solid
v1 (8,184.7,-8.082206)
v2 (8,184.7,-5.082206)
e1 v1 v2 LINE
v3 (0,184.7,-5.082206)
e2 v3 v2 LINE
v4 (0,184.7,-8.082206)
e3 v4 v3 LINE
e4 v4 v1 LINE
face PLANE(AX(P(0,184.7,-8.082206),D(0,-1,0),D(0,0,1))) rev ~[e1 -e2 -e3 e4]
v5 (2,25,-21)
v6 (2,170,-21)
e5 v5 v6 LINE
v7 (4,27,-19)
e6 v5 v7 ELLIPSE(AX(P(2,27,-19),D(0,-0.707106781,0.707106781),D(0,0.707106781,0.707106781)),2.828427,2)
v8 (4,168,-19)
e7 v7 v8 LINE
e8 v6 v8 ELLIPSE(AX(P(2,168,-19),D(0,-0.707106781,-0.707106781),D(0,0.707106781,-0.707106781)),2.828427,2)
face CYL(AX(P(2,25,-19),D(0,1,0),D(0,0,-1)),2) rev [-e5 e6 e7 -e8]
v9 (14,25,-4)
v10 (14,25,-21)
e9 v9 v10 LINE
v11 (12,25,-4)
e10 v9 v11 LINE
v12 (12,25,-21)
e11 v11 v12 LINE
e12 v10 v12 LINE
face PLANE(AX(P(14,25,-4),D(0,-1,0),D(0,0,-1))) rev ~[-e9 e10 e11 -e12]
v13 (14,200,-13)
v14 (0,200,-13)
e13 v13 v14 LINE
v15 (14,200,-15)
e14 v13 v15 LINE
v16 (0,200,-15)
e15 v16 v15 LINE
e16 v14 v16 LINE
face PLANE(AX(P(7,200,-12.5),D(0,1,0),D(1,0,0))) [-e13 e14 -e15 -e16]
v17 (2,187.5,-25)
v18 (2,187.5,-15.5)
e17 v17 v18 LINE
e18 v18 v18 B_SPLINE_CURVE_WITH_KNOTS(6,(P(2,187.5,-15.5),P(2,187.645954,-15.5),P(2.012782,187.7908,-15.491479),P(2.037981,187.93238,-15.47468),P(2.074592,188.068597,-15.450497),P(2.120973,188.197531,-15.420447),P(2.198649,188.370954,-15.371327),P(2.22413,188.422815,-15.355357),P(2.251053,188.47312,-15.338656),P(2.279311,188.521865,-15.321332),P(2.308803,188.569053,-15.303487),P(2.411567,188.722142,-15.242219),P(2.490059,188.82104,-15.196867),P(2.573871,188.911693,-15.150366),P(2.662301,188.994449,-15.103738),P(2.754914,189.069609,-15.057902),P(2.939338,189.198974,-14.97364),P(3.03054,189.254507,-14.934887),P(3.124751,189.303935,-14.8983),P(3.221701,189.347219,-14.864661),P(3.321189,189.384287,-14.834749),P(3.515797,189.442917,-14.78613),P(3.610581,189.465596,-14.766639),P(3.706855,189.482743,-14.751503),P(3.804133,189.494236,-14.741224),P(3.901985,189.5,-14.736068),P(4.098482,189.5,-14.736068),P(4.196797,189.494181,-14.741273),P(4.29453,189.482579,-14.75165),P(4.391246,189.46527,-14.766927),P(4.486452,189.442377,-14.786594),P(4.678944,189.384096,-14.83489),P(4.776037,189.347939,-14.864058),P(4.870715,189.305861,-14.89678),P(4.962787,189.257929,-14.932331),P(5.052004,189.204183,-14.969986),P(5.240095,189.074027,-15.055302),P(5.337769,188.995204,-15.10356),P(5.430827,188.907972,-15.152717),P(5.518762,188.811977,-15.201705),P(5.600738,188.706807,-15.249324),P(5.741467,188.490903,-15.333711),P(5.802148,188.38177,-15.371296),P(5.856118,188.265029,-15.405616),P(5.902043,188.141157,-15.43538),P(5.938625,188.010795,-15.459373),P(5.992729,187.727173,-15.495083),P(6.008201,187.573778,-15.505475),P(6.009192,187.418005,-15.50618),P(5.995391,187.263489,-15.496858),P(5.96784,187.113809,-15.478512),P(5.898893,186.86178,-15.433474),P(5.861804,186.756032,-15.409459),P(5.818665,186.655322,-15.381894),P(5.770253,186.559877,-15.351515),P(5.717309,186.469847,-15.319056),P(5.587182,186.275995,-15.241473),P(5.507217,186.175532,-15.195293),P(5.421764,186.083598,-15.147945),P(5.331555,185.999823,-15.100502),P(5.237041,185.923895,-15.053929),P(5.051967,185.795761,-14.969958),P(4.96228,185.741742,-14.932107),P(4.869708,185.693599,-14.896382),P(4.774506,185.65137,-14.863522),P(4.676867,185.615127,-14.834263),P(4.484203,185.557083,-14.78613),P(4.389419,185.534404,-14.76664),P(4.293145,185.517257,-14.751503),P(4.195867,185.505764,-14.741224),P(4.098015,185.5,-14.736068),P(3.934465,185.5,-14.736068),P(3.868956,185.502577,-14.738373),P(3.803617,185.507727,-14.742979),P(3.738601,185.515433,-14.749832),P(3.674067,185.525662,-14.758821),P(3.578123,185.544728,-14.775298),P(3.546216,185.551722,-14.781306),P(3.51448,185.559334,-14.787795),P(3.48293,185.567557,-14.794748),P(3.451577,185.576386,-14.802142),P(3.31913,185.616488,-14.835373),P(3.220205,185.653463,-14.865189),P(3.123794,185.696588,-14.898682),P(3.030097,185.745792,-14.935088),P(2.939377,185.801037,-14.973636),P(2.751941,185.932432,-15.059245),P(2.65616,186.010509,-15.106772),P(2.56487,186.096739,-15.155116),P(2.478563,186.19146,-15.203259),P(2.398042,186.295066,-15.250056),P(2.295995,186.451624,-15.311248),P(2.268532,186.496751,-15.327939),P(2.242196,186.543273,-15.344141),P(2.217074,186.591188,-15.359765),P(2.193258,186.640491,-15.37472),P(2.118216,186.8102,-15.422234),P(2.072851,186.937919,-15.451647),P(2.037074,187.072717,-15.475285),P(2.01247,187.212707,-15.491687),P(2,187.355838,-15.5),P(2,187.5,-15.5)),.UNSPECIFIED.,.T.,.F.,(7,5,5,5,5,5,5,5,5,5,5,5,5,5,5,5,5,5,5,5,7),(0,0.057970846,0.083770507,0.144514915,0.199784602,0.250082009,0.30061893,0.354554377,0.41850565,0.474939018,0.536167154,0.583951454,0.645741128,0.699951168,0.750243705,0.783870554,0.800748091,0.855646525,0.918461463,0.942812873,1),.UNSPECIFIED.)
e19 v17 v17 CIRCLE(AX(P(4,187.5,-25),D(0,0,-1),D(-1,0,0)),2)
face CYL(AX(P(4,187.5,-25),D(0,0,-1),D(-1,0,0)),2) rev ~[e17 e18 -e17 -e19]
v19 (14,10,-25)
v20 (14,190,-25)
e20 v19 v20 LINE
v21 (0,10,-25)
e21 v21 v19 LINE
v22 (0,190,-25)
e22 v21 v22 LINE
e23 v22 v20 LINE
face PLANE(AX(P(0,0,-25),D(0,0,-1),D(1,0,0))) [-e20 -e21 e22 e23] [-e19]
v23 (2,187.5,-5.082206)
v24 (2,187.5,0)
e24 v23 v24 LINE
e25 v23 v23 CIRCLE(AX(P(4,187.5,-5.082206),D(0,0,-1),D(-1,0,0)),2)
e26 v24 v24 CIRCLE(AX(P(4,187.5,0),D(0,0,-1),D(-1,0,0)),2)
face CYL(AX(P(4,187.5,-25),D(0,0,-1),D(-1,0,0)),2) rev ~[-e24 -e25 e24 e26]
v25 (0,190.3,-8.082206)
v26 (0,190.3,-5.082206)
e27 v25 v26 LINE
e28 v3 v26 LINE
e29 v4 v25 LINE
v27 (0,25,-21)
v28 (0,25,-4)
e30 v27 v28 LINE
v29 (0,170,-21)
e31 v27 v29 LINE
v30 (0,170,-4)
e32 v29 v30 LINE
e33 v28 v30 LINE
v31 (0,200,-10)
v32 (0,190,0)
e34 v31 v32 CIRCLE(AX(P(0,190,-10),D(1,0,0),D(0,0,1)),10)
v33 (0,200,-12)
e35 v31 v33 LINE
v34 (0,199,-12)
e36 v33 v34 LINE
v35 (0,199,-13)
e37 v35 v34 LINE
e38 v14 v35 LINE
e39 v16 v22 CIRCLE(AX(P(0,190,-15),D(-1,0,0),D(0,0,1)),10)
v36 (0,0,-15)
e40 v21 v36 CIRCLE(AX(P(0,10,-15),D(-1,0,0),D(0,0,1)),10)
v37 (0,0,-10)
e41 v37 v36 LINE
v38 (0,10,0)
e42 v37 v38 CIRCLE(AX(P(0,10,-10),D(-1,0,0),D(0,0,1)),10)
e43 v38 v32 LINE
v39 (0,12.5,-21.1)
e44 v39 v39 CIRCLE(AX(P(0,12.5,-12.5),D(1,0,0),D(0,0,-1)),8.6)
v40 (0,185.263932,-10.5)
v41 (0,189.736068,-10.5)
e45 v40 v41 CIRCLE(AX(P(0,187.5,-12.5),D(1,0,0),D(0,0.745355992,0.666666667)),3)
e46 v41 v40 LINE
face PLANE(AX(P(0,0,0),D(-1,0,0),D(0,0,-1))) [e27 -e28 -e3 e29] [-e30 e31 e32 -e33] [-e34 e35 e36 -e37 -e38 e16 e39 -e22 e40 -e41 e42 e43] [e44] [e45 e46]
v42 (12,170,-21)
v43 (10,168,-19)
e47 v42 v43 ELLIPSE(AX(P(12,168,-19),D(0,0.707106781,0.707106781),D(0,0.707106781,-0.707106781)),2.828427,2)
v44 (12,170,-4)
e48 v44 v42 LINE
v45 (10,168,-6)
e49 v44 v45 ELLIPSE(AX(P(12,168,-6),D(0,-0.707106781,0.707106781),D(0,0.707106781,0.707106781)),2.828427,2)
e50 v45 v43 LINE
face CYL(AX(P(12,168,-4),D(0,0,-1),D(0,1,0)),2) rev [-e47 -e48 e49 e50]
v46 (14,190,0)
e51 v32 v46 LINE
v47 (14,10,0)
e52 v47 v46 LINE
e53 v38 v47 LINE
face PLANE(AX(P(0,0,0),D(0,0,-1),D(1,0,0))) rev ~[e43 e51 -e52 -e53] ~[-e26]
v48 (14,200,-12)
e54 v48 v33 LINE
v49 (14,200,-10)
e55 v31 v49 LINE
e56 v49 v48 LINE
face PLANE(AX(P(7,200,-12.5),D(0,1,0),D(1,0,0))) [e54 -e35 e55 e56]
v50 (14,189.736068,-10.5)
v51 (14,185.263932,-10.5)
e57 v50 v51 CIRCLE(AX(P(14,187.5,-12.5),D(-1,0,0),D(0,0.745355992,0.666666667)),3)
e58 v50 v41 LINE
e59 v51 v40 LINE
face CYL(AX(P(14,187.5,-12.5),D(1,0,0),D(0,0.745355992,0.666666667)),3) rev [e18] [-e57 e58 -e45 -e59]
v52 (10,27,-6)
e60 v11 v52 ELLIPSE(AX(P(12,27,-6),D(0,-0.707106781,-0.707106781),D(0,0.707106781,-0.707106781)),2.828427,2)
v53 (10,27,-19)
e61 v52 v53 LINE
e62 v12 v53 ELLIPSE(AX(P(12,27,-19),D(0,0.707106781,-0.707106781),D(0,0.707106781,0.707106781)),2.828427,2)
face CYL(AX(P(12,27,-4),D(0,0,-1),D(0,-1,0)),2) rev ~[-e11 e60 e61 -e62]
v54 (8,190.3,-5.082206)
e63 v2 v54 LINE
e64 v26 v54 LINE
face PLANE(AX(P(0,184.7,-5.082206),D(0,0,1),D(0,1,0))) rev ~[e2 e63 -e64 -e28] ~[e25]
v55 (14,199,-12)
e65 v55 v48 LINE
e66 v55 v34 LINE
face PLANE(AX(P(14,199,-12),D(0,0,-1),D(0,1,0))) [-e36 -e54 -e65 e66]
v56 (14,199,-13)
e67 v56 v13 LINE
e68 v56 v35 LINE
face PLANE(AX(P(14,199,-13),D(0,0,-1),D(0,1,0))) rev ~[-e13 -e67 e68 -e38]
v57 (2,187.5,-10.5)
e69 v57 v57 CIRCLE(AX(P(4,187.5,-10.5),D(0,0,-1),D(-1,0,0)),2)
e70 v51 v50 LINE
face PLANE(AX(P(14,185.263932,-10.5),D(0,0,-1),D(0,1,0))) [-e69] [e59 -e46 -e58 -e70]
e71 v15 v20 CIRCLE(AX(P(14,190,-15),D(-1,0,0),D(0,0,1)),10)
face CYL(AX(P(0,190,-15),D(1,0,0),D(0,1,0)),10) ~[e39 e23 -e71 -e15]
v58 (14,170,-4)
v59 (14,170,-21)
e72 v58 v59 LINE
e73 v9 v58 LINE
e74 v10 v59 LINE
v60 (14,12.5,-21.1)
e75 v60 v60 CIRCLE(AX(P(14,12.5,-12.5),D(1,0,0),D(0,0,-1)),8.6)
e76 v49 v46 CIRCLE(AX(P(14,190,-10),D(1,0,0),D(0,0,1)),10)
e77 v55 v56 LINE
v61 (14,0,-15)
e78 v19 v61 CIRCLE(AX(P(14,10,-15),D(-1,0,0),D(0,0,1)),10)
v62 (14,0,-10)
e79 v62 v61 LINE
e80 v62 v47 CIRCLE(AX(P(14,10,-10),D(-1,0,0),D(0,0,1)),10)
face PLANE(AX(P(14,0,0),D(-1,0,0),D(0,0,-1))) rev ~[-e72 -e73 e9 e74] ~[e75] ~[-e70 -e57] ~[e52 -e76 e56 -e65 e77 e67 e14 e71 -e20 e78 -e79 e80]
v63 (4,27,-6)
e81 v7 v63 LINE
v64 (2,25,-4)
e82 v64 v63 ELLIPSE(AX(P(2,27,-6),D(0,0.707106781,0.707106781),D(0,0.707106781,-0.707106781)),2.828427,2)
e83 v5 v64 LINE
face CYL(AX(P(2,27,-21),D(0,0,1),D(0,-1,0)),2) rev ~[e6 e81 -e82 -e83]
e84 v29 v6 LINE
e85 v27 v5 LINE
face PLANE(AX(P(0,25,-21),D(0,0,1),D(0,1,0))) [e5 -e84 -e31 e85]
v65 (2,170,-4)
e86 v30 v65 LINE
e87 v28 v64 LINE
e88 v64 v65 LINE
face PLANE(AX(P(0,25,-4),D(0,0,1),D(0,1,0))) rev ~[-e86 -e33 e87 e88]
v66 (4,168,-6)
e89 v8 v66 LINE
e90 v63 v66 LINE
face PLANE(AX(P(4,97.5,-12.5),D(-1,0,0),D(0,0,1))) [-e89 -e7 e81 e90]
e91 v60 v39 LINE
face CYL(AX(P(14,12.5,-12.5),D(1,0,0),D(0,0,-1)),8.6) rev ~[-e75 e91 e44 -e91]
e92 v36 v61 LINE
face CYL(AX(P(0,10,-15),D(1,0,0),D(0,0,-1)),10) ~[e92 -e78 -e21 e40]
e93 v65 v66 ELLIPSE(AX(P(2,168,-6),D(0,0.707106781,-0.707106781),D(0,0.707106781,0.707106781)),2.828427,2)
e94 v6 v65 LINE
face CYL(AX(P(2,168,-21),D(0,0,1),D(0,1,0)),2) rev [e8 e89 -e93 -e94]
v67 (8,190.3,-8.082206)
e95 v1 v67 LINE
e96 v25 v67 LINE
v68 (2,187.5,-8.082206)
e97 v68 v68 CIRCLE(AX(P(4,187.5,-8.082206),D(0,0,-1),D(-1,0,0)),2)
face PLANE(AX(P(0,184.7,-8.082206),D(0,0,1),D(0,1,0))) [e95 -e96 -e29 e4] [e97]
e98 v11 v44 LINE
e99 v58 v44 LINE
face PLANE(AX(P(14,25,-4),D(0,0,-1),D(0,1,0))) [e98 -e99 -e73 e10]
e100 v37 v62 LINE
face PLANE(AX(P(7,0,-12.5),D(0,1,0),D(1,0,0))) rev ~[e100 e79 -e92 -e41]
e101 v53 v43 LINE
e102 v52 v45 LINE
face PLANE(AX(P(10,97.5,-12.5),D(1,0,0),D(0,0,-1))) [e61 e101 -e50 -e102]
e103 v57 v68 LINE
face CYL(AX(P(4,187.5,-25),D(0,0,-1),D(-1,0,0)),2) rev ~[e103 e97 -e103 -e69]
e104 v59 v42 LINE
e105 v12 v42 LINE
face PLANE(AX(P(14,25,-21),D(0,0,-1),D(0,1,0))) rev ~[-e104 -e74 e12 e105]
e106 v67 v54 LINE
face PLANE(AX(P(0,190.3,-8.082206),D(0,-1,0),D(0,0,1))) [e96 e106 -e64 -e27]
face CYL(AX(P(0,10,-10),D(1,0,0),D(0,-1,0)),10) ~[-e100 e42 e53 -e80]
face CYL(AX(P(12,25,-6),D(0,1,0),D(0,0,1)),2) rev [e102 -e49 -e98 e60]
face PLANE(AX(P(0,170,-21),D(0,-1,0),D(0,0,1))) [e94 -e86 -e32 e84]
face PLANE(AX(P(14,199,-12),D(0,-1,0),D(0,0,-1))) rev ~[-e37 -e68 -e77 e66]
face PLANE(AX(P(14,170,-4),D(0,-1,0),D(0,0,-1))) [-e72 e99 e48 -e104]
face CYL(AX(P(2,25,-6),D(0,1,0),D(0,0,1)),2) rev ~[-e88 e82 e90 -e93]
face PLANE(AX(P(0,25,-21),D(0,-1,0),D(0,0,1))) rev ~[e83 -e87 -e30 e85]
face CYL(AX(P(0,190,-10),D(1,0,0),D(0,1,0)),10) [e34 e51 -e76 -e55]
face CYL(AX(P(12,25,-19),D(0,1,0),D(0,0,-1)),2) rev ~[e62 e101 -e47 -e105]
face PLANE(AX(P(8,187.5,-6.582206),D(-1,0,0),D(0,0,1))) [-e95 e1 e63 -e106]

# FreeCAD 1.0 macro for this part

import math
import FreeCAD as App
import Part
import Sketcher

V = App.Vector
Q = App.Units.Quantity


def edges_at(feature, points):
    """Names of the edges that pass closest to the given points."""
    edges = feature.Shape.Edges
    near = lambda p: min(range(len(edges)), key=lambda i: edges[i].distToShape(Part.Vertex(*p))[0])
    return sorted({f"Edge{near(p) + 1}" for p in points})


def add_polygon(sketch, points):
    """Adds a closed chain of lines whose ends are joined by coincident constraints."""
    first, n = sketch.GeometryCount, len(points)
    for a, b in zip(points, points[1:] + points[:1]):
        sketch.addGeometry(Part.LineSegment(App.Vector(*a, 0), App.Vector(*b, 0)), False)
    for i in range(n):
        sketch.addConstraint(Sketcher.Constraint("Coincident", first + i, 2, first + (i + 1) % n, 1))

doc = App.newDocument("Part")
params = doc.addObject("Spreadsheet::Sheet", "Params")
for row, (alias, value) in enumerate([
    ("sketch1_width", "14 mm"),
    ("sketch1_height", "25 mm"),
    ("pad1_length", "200 mm"),
    ("fillet_radius", "10 mm"),
    ("fillet2_radius", "10 mm"),
    ("sketch2_radius", "3 mm"),
    ("sketch2_diameter", "17.2 mm"),
    ("pocket1_length", "28 mm"),
    ("sketch3_radius", "3 mm"),
    ("pad2_length", "14 mm"),
    ("sketch4_diameter", "4 mm"),
    ("sketch5_height", "3 mm"),
    ("sketch5_width", "5.6 mm"),
    ("pocket3_length", "8 mm"),
    ("sketch6_width", "145 mm"),
    ("sketch6_height", "17 mm"),
    ("pocket4_length", "4 mm"),
    ("sketch7_width", "145 mm"),
    ("sketch7_height", "17 mm"),
    ("pocket5_length", "4 mm"),
    ("fillet3_radius", "2 mm"),
    ("fillet4_radius", "2 mm"),
    ("sketch8_width", "1 mm"),
    ("fillet5_radius", "10 mm"),
    ("fillet6_radius", "10 mm"),
], start=1):
    params.set(f"A{row}", alias)
    params.set(f"B{row}", "=" + value)
    params.setAlias(f"B{row}", alias)

body = doc.addObject("PartDesign::Body", "Body")

sketch1 = doc.addObject("Sketcher::SketchObject", "Sketch")
body.addObject(sketch1)
sketch1.AttachmentSupport = (doc.XZ_Plane, [""])
sketch1.MapMode = "FlatFace"
add_polygon(sketch1, [(0, -25), (0, 0), (14, 0), (14, -25)])
sketch1.addConstraint([
    Sketcher.Constraint("Vertical", 0),
    Sketcher.Constraint("Horizontal", 1),
    Sketcher.Constraint("Vertical", 2),
    Sketcher.Constraint("Horizontal", 3),
    Sketcher.Constraint("Coincident", 0, 2, -1, 1),
    Sketcher.Constraint("DistanceX", 1, 1, 1, 2, Q("14 mm")),
    Sketcher.Constraint("DistanceY", 0, 1, 0, 2, Q("25 mm")),
])
sketch1.setExpression("Constraints[9]", "Params.sketch1_width")
sketch1.setExpression("Constraints[10]", "Params.sketch1_height")
pad1 = doc.addObject("PartDesign::Pad", "Pad")
body.addObject(pad1)
pad1.Profile = sketch1
pad1.setExpression("Length", "Params.pad1_length")
pad1.Reversed = True
doc.recompute()

fillet = doc.addObject("PartDesign::Fillet", "Fillet")
body.addObject(fillet)
fillet.Base = (pad1, edges_at(pad1, [(7, 0, -25)]))
fillet.setExpression("Radius", "Params.fillet_radius")
doc.recompute()

fillet2 = doc.addObject("PartDesign::Fillet", "Fillet001")
body.addObject(fillet2)
fillet2.Base = (fillet, edges_at(fillet, [(7, 0, 0)]))
fillet2.setExpression("Radius", "Params.fillet2_radius")

sketch2 = doc.addObject("Sketcher::SketchObject", "Sketch001")
body.addObject(sketch2)
sketch2.AttachmentSupport = (doc.YZ_Plane, [""])
sketch2.MapMode = "FlatFace"
sketch2.AttachmentOffset = App.Placement(V(0, 0, 14), App.Rotation())
sketch2.addGeometry([
    Part.Circle(V(12.5, -12.5, 0), V(0, 0, 1), 8.6),
    Part.LineSegment(V(189.7, -10.5, 0), V(185.3, -10.5, 0)),
    Part.ArcOfCircle(Part.Circle(V(187.5, -12.5, 0), V(0, 0, 1), 3), math.radians(138), math.radians(402)),
], False)
sketch2.addConstraint([
    Sketcher.Constraint("Coincident", 1, 1, 2, 2),
    Sketcher.Constraint("Coincident", 2, 1, 1, 2),
    Sketcher.Constraint("Horizontal", 1),
    Sketcher.Constraint("Horizontal", 0, 3, 2, 3),
    Sketcher.Constraint("Radius", 2, Q("3 mm")),
    Sketcher.Constraint("Diameter", 0, Q("17.2 mm")),
    Sketcher.Constraint("DistanceX", 0, 3, 2, 3, Q("175 mm")),
    Sketcher.Constraint("DistanceY", 2, 3, 1, 1, Q("2 mm")),
    Sketcher.Constraint("DistanceX", -1, 1, 0, 3, Q("12.5 mm")),
    Sketcher.Constraint("DistanceY", 0, 3, -1, 1, Q("12.5 mm")),
])
sketch2.setExpression("Constraints[4]", "Params.sketch2_radius")
sketch2.setExpression("Constraints[5]", "Params.sketch2_diameter")
pocket1 = doc.addObject("PartDesign::Pocket", "Pocket")
body.addObject(pocket1)
pocket1.Profile = sketch2
pocket1.setExpression("Length", "Params.pocket1_length")

sketch3 = doc.addObject("Sketcher::SketchObject", "Sketch002")
body.addObject(sketch3)
sketch3.AttachmentSupport = (doc.YZ_Plane, [""])
sketch3.MapMode = "FlatFace"
sketch3.AttachmentOffset = App.Placement(V(0, 0, 14), App.Rotation())
sketch3.addGeometry([
    Part.Circle(V(187.5, -12.5, 0), V(0, 0, 1), 9.9),
    Part.ArcOfCircle(Part.Circle(V(187.5, -12.5, 0), V(0, 0, 1), 3), math.radians(138), math.radians(402)),
    Part.LineSegment(V(185.3, -10.5, 0), V(189.7, -10.5, 0)),
], False)
sketch3.addConstraint([
    Sketcher.Constraint("Coincident", 1, 1, 2, 1),
    Sketcher.Constraint("Coincident", 2, 2, 1, 2),
    Sketcher.Constraint("Horizontal", 2),
    Sketcher.Constraint("Coincident", 1, 3, 0, 3),
    Sketcher.Constraint("Radius", 1, Q("3 mm")),
    Sketcher.Constraint("DistanceY", 0, 3, 1, 1, Q("2 mm")),
    Sketcher.Constraint("DistanceX", -1, 1, 0, 3, Q("187.5 mm")),
    Sketcher.Constraint("DistanceY", 0, 3, -1, 1, Q("12.5 mm")),
    Sketcher.Constraint("Diameter", 0, Q("19.826088 mm")),
])
sketch3.setExpression("Constraints[4]", "Params.sketch3_radius")
pad2 = doc.addObject("PartDesign::Pad", "Pad001")
body.addObject(pad2)
pad2.Profile = sketch3
pad2.setExpression("Length", "Params.pad2_length")
pad2.Reversed = True

sketch4 = doc.addObject("Sketcher::SketchObject", "Sketch003")
body.addObject(sketch4)
sketch4.AttachmentSupport = (doc.XY_Plane, [""])
sketch4.MapMode = "FlatFace"
sketch4.AttachmentOffset = App.Placement(V(0, 0, -25), App.Rotation())
sketch4.addGeometry(Part.Circle(V(4, 187.5, 0), V(0, 0, 1), 2), False)
sketch4.addConstraint([
    Sketcher.Constraint("Diameter", 0, Q("4 mm")),
    Sketcher.Constraint("DistanceX", -1, 1, 0, 3, Q("4 mm")),
    Sketcher.Constraint("DistanceY", -1, 1, 0, 3, Q("187.5 mm")),
])
sketch4.setExpression("Constraints[0]", "Params.sketch4_diameter")
pocket2 = doc.addObject("PartDesign::Pocket", "Pocket001")
body.addObject(pocket2)
pocket2.Profile = sketch4
pocket2.Type = "ThroughAll"
pocket2.Reversed = True

sketch5 = doc.addObject("Sketcher::SketchObject", "Sketch004")
body.addObject(sketch5)
sketch5.AttachmentSupport = (doc.YZ_Plane, [""])
sketch5.MapMode = "FlatFace"
add_polygon(sketch5, [(190.3, -8.1), (184.7, -8.1), (184.7, -5.1), (190.3, -5.1)])
sketch5.addConstraint([
    Sketcher.Constraint("Horizontal", 0),
    Sketcher.Constraint("Vertical", 1),
    Sketcher.Constraint("Horizontal", 2),
    Sketcher.Constraint("Vertical", 3),
    Sketcher.Constraint("DistanceY", 1, 1, 1, 2, Q("3 mm")),
    Sketcher.Constraint("DistanceX", 0, 2, 0, 1, Q("5.6 mm")),
    Sketcher.Constraint("DistanceX", -1, 1, 0, 2, Q("184.7 mm")),
    Sketcher.Constraint("DistanceY", 0, 2, -1, 1, Q("8.082206 mm")),
])
sketch5.setExpression("Constraints[8]", "Params.sketch5_height")
sketch5.setExpression("Constraints[9]", "Params.sketch5_width")
pocket3 = doc.addObject("PartDesign::Pocket", "Pocket002")
body.addObject(pocket3)
pocket3.Profile = sketch5
pocket3.setExpression("Length", "Params.pocket3_length")
pocket3.Reversed = True

sketch6 = doc.addObject("Sketcher::SketchObject", "Sketch005")
body.addObject(sketch6)
sketch6.AttachmentSupport = (doc.YZ_Plane, [""])
sketch6.MapMode = "FlatFace"
add_polygon(sketch6, [(170, -21), (25, -21), (25, -4), (170, -4)])
sketch6.addConstraint([
    Sketcher.Constraint("Horizontal", 0),
    Sketcher.Constraint("Vertical", 1),
    Sketcher.Constraint("Horizontal", 2),
    Sketcher.Constraint("Vertical", 3),
    Sketcher.Constraint("DistanceX", 0, 2, 0, 1, Q("145 mm")),
    Sketcher.Constraint("DistanceY", 1, 1, 1, 2, Q("17 mm")),
    Sketcher.Constraint("DistanceX", -1, 1, 0, 2, Q("25 mm")),
    Sketcher.Constraint("DistanceY", 0, 2, -1, 1, Q("21 mm")),
])
sketch6.setExpression("Constraints[8]", "Params.sketch6_width")
sketch6.setExpression("Constraints[9]", "Params.sketch6_height")
pocket4 = doc.addObject("PartDesign::Pocket", "Pocket003")
body.addObject(pocket4)
pocket4.Profile = sketch6
pocket4.setExpression("Length", "Params.pocket4_length")
pocket4.Reversed = True

sketch7 = doc.addObject("Sketcher::SketchObject", "Sketch006")
body.addObject(sketch7)
sketch7.AttachmentSupport = (doc.YZ_Plane, [""])
sketch7.MapMode = "FlatFace"
sketch7.AttachmentOffset = App.Placement(V(0, 0, 14), App.Rotation())
add_polygon(sketch7, [(170, -4), (25, -4), (25, -21), (170, -21)])
sketch7.addConstraint([
    Sketcher.Constraint("Horizontal", 0),
    Sketcher.Constraint("Vertical", 1),
    Sketcher.Constraint("Horizontal", 2),
    Sketcher.Constraint("Vertical", 3),
    Sketcher.Constraint("DistanceX", 0, 2, 0, 1, Q("145 mm")),
    Sketcher.Constraint("DistanceY", 1, 2, 1, 1, Q("17 mm")),
    Sketcher.Constraint("DistanceX", -1, 1, 0, 2, Q("25 mm")),
    Sketcher.Constraint("DistanceY", 0, 2, -1, 1, Q("4 mm")),
])
sketch7.setExpression("Constraints[8]", "Params.sketch7_width")
sketch7.setExpression("Constraints[9]", "Params.sketch7_height")
pocket5 = doc.addObject("PartDesign::Pocket", "Pocket004")
body.addObject(pocket5)
pocket5.Profile = sketch7
pocket5.setExpression("Length", "Params.pocket5_length")
doc.recompute()

fillet3 = doc.addObject("PartDesign::Fillet", "Fillet002")
body.addObject(fillet3)
fillet3.Base = (pocket5, edges_at(pocket5, [
    (4, 97.5, -21),
    (4, 170, -12.5),
    (4, 97.5, -4),
    (4, 25, -12.5),
]))
fillet3.setExpression("Radius", "Params.fillet3_radius")
doc.recompute()

fillet4 = doc.addObject("PartDesign::Fillet", "Fillet003")
body.addObject(fillet4)
fillet4.Base = (fillet3, edges_at(fillet3, [
    (10, 97.5, -21),
    (10, 25, -12.5),
    (10, 97.5, -4),
    (10, 170, -12.5),
]))
fillet4.setExpression("Radius", "Params.fillet4_radius")

sketch8 = doc.addObject("Sketcher::SketchObject", "Sketch007")
body.addObject(sketch8)
sketch8.AttachmentSupport = (doc.YZ_Plane, [""])
sketch8.MapMode = "FlatFace"
sketch8.AttachmentOffset = App.Placement(V(0, 0, 14), App.Rotation())
add_polygon(sketch8, [(200, -12), (199, -12), (199, -13), (200, -13)])
sketch8.addConstraint([
    Sketcher.Constraint("Horizontal", 0),
    Sketcher.Constraint("Vertical", 1),
    Sketcher.Constraint("Horizontal", 2),
    Sketcher.Constraint("Vertical", 3),
    Sketcher.Constraint("Equal", 2, 1),
    Sketcher.Constraint("DistanceX", 0, 2, 0, 1, Q("1 mm")),
    Sketcher.Constraint("DistanceX", -1, 1, 0, 2, Q("199 mm")),
    Sketcher.Constraint("DistanceY", 0, 2, -1, 1, Q("12 mm")),
])
sketch8.setExpression("Constraints[9]", "Params.sketch8_width")
pocket6 = doc.addObject("PartDesign::Pocket", "Pocket005")
body.addObject(pocket6)
pocket6.Profile = sketch8
pocket6.Type = "ThroughAll"
doc.recompute()

fillet5 = doc.addObject("PartDesign::Fillet", "Fillet004")
body.addObject(fillet5)
fillet5.Base = (pocket6, edges_at(pocket6, [(7, 200, 0)]))
fillet5.setExpression("Radius", "Params.fillet5_radius")
doc.recompute()

fillet6 = doc.addObject("PartDesign::Fillet", "Fillet005")
body.addObject(fillet6)
fillet6.Base = (fillet5, edges_at(fillet5, [(7, 200, -25)]))
fillet6.setExpression("Radius", "Params.fillet6_radius")

doc.recompute()
